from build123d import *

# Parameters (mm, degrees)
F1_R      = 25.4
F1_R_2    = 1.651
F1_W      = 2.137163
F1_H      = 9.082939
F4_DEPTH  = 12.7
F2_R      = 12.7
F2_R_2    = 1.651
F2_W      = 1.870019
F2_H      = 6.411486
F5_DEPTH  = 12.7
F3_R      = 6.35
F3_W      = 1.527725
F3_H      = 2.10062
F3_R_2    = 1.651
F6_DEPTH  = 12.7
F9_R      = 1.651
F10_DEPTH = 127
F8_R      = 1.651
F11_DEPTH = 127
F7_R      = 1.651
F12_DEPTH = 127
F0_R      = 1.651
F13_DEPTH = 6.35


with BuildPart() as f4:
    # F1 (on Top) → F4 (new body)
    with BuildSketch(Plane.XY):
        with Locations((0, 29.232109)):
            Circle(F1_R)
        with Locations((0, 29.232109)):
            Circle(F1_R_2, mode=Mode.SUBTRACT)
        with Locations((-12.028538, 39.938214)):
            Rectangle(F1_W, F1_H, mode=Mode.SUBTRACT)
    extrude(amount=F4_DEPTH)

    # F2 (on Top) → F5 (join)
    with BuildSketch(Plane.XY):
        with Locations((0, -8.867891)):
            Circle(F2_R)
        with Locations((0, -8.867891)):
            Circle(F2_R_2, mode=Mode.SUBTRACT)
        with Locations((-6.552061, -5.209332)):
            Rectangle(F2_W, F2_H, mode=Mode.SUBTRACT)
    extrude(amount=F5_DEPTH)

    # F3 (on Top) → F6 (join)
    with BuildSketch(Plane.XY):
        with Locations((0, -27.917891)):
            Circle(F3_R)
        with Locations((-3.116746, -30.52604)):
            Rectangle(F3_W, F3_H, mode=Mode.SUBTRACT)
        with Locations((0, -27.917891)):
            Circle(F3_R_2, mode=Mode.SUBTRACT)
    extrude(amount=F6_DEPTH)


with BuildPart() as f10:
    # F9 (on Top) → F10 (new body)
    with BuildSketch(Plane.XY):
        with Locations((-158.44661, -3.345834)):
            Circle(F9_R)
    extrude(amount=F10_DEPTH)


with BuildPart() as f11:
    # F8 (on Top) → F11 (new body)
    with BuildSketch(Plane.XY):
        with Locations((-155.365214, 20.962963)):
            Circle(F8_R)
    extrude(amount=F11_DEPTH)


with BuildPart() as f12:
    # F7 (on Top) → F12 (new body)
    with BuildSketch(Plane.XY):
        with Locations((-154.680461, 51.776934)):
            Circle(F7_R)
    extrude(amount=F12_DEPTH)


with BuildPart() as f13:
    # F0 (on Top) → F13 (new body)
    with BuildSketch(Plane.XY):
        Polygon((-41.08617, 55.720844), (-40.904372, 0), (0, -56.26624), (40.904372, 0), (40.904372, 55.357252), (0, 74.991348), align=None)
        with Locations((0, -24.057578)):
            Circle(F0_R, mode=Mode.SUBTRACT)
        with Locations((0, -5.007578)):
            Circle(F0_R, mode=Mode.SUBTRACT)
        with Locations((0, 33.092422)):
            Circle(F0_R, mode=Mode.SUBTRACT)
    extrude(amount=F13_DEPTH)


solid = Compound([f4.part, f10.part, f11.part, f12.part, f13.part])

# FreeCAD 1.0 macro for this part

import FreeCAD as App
import Part
import Sketcher
from FreeCAD import Vector
Q = App.Units.Quantity


def add_polygon(sketch, points):
    """Adds a closed chain of lines whose ends are joined by coincident constraints."""
    first, n = sketch.GeometryCount, len(points)
    for a, b in zip(points, points[1:] + points[:1]):
        sketch.addGeometry(Part.LineSegment(App.Vector(*a, 0), App.Vector(*b, 0)), False)
    for i in range(n):
        sketch.addConstraint(Sketcher.Constraint("Coincident", first + i, 2, first + (i + 1) % n, 1))

doc = App.newDocument("Part")
params = doc.addObject("Spreadsheet::Sheet", "Params")
for row, (alias, value) in enumerate([
    ("sketch1_diameter", "2 in"),
    ("sketch1_diameter2", "0.13 in"),
    ("pad1_length", "0.5 in"),
    ("sketch2_diameter", "1 in"),
    ("sketch2_diameter2", "0.13 in"),
    ("pad2_length", "0.5 in"),
    ("sketch3_diameter", "0.5 in"),
    ("sketch3_diameter2", "0.13 in"),
    ("pad3_length", "0.5 in"),
    ("sketch4_diameter", "0.13 in"),
    ("pad4_length", "5 in"),
    ("sketch5_diameter", "0.13 in"),
    ("pad5_length", "5 in"),
    ("sketch6_diameter", "0.13 in"),
    ("pad6_length", "5 in"),
    ("sketch7_diameter", "0.13 in"),
    ("pad7_length", "0.25 in"),
], start=1):
    params.set(f"A{row}", alias)
    params.set(f"B{row}", "=" + value)
    params.setAlias(f"B{row}", alias)

body = doc.addObject("PartDesign::Body", "Body")
body.AllowCompound = True

# Sketch on XY plane
sketch1 = body.newObject("Sketcher::SketchObject", "Sketch")
sketch1.AttachmentSupport = (doc.getObject("XY_Plane"), [""])
sketch1.MapMode = "FlatFace"
sketch1.addGeometry(Part.Circle(Vector(0, 29.232109, 0), Vector(0, 0, 1), 25.4), False)  # 0
sketch1.addGeometry(Part.Circle(Vector(0, 29.232109, 0), Vector(0, 0, 1), 1.651), False)  # 1
add_polygon(sketch1, [(-10.959957, 35.396744), (-13.097119, 35.396744), (-13.097119, 44.479684), (-10.959957, 44.479684)])  # lines 2-5
sketch1.addConstraint([
    Sketcher.Constraint("Horizontal", 2),
    Sketcher.Constraint("Vertical", 3),
    Sketcher.Constraint("Horizontal", 4),
    Sketcher.Constraint("Vertical", 5),
    Sketcher.Constraint("Coincident", 1, 3, 0, 3),
    Sketcher.Constraint("PointOnObject", 0, 3, -2),
    Sketcher.Constraint("Diameter", 0, Q("2 in")),
    Sketcher.Constraint("Diameter", 1, Q("0.13 in")),
    Sketcher.Constraint("DistanceY", 3, 1, 3, 2, 9.082939),
    Sketcher.Constraint("DistanceX", 2, 2, 2, 1, 2.137163),
    Sketcher.Constraint("DistanceY", -1, 1, 0, 3, 29.232109),
    Sketcher.Constraint("DistanceX", 2, 2, -1, 1, 13.097119),
    Sketcher.Constraint("DistanceY", -1, 1, 2, 2, 35.396744),
])
sketch1.setExpression("Constraints[10]", "Params.sketch1_diameter")
sketch1.setExpression("Constraints[11]", "Params.sketch1_diameter2")
pad1 = body.newObject("PartDesign::Pad", "Pad")
pad1.Profile = sketch1
pad1.setExpression("Length", "Params.pad1_length")

# Sketch on XY plane
sketch2 = body.newObject("Sketcher::SketchObject", "Sketch001")
sketch2.AttachmentSupport = (doc.getObject("XY_Plane"), [""])
sketch2.MapMode = "FlatFace"
sketch2.addGeometry(Part.Circle(Vector(0, -8.867891, 0), Vector(0, 0, 1), 12.7), False)  # 0
sketch2.addGeometry(Part.Circle(Vector(0, -8.867891, 0), Vector(0, 0, 1), 1.651), False)  # 1
add_polygon(sketch2, [(-5.617051, -8.415075), (-7.48707, -8.415075), (-7.48707, -2.003589), (-5.617051, -2.003589)])  # lines 2-5
sketch2.addConstraint([
    Sketcher.Constraint("Horizontal", 2),
    Sketcher.Constraint("Vertical", 3),
    Sketcher.Constraint("Horizontal", 4),
    Sketcher.Constraint("Vertical", 5),
    Sketcher.Constraint("Coincident", 1, 3, 0, 3),
    Sketcher.Constraint("PointOnObject", 0, 3, -2),
    Sketcher.Constraint("Diameter", 0, Q("1 in")),
    Sketcher.Constraint("Diameter", 1, Q("0.13 in")),
    Sketcher.Constraint("DistanceX", 2, 2, 2, 1, 1.870019),
    Sketcher.Constraint("DistanceY", 3, 1, 3, 2, 6.411486),
    Sketcher.Constraint("DistanceY", 0, 3, -1, 1, 8.867891),
    Sketcher.Constraint("DistanceX", 2, 2, -1, 1, 7.48707),
    Sketcher.Constraint("DistanceY", 3, 2, -1, 1, 2.003589),
])
sketch2.setExpression("Constraints[10]", "Params.sketch2_diameter")
sketch2.setExpression("Constraints[11]", "Params.sketch2_diameter2")
pad2 = body.newObject("PartDesign::Pad", "Pad001")
pad2.Profile = sketch2
pad2.setExpression("Length", "Params.pad2_length")

# Sketch on XY plane
sketch3 = body.newObject("Sketcher::SketchObject", "Sketch002")
sketch3.AttachmentSupport = (doc.getObject("XY_Plane"), [""])
sketch3.MapMode = "FlatFace"
sketch3.addGeometry(Part.Circle(Vector(0, -27.917891, 0), Vector(0, 0, 1), 6.35), False)  # 0
add_polygon(sketch3, [(-2.352883, -31.57635), (-3.880609, -31.57635), (-3.880609, -29.47573), (-2.352883, -29.47573)])  # lines 1-4
sketch3.addGeometry(Part.Circle(Vector(0, -27.917891, 0), Vector(0, 0, 1), 1.651), False)  # 5
sketch3.addConstraint([
    Sketcher.Constraint("Horizontal", 1),
    Sketcher.Constraint("Vertical", 2),
    Sketcher.Constraint("Horizontal", 3),
    Sketcher.Constraint("Vertical", 4),
    Sketcher.Constraint("Coincident", 5, 3, 0, 3),
    Sketcher.Constraint("PointOnObject", 0, 3, -2),
    Sketcher.Constraint("Diameter", 0, Q("0.5 in")),
    Sketcher.Constraint("Diameter", 5, Q("0.13 in")),
    Sketcher.Constraint("DistanceY", 2, 1, 2, 2, 2.10062),
    Sketcher.Constraint("DistanceX", 1, 2, 1, 1, 1.527725),
    Sketcher.Constraint("DistanceY", 0, 3, -1, 1, 27.917891),
    Sketcher.Constraint("DistanceX", 1, 2, -1, 1, 3.880609),
    Sketcher.Constraint("DistanceY", 1, 2, -1, 1, 31.57635),
])
sketch3.setExpression("Constraints[10]", "Params.sketch3_diameter")
sketch3.setExpression("Constraints[11]", "Params.sketch3_diameter2")
pad3 = body.newObject("PartDesign::Pad", "Pad002")
pad3.Profile = sketch3
pad3.setExpression("Length", "Params.pad3_length")
body2 = doc.addObject("PartDesign::Body", "Body001")

# Sketch on XY plane
sketch4 = body2.newObject("Sketcher::SketchObject", "Sketch003")
sketch4.AttachmentSupport = (doc.getObject("XY_Plane001"), [""])
sketch4.MapMode = "FlatFace"
sketch4.addGeometry(Part.Circle(Vector(-158.44661, -3.345834, 0), Vector(0, 0, 1), 1.651), False)
sketch4.addConstraint([
    Sketcher.Constraint("Diameter", 0, Q("0.13 in")),
    Sketcher.Constraint("DistanceX", 0, 3, -1, 1, 158.44661),
    Sketcher.Constraint("DistanceY", 0, 3, -1, 1, 3.345834),
])
sketch4.setExpression("Constraints[0]", "Params.sketch4_diameter")
pad4 = body2.newObject("PartDesign::Pad", "Pad003")
pad4.Profile = sketch4
pad4.setExpression("Length", "Params.pad4_length")
body3 = doc.addObject("PartDesign::Body", "Body002")

# Sketch on XY plane
sketch5 = body3.newObject("Sketcher::SketchObject", "Sketch004")
sketch5.AttachmentSupport = (doc.getObject("XY_Plane002"), [""])
sketch5.MapMode = "FlatFace"
sketch5.addGeometry(Part.Circle(Vector(-155.365214, 20.962963, 0), Vector(0, 0, 1), 1.651), False)
sketch5.addConstraint([
    Sketcher.Constraint("Diameter", 0, Q("0.13 in")),
    Sketcher.Constraint("DistanceX", 0, 3, -1, 1, 155.365214),
    Sketcher.Constraint("DistanceY", -1, 1, 0, 3, 20.962963),
])
sketch5.setExpression("Constraints[0]", "Params.sketch5_diameter")
pad5 = body3.newObject("PartDesign::Pad", "Pad004")
pad5.Profile = sketch5
pad5.setExpression("Length", "Params.pad5_length")
body4 = doc.addObject("PartDesign::Body", "Body003")

# Sketch on XY plane
sketch6 = body4.newObject("Sketcher::SketchObject", "Sketch005")
sketch6.AttachmentSupport = (doc.getObject("XY_Plane003"), [""])
sketch6.MapMode = "FlatFace"
sketch6.addGeometry(Part.Circle(Vector(-154.680461, 51.776934, 0), Vector(0, 0, 1), 1.651), False)
sketch6.addConstraint([
    Sketcher.Constraint("Diameter", 0, Q("0.13 in")),
    Sketcher.Constraint("DistanceX", 0, 3, -1, 1, 154.680461),
    Sketcher.Constraint("DistanceY", -1, 1, 0, 3, 51.776934),
])
sketch6.setExpression("Constraints[0]", "Params.sketch6_diameter")
pad6 = body4.newObject("PartDesign::Pad", "Pad005")
pad6.Profile = sketch6
pad6.setExpression("Length", "Params.pad6_length")
body5 = doc.addObject("PartDesign::Body", "Body004")

# Sketch on XY plane
sketch7 = body5.newObject("Sketcher::SketchObject", "Sketch006")
sketch7.AttachmentSupport = (doc.getObject("XY_Plane004"), [""])
sketch7.MapMode = "FlatFace"
add_polygon(sketch7, [(-41.08617, 55.720844), (-40.904372, 0), (0, -56.26624), (40.904372, 0), (40.904372, 55.357252), (0, 74.991348)])  # lines 0-5
sketch7.addGeometry(Part.Circle(Vector(0, -24.057578, 0), Vector(0, 0, 1), 1.651), False)  # 6
sketch7.addGeometry(Part.Circle(Vector(0, -5.007578, 0), Vector(0, 0, 1), 1.651), False)  # 7
sketch7.addGeometry(Part.Circle(Vector(0, 33.092422, 0), Vector(0, 0, 1), 1.651), False)  # 8
sketch7.addConstraint([
    Sketcher.Constraint("Vertical", 3),
    Sketcher.Constraint("Equal", 6, 7),
    Sketcher.Constraint("Equal", 7, 8),
    Sketcher.Constraint("Symmetric", 0, 2, 2, 2, -1, 1),
    Sketcher.Constraint("PointOnObject", 6, 3, -2),
    Sketcher.Constraint("PointOnObject", 7, 3, -2),
    Sketcher.Constraint("PointOnObject", 8, 3, -2),
    Sketcher.Constraint("PointOnObject", 0, 2, -1),
    Sketcher.Constraint("PointOnObject", 1, 2, -2),
    Sketcher.Constraint("PointOnObject", 4, 2, -2),
    Sketcher.Constraint("Diameter", 6, Q("0.13 in")),
    Sketcher.Constraint("DistanceY", 7, 3, 8, 3, Q("1.5 in")),
    Sketcher.Constraint("DistanceY", 6, 3, 7, 3, Q("0.75 in")),
    Sketcher.Constraint("DistanceX", 5, 2, 0, 2, 0.181798),
    Sketcher.Constraint("Distance", 0, 55.721141),
    Sketcher.Constraint("DistanceY", 3, 1, 3, 2, 55.357252),
    Sketcher.Constraint("DistanceY", 1, 2, -1, 1, 56.26624),
    Sketcher.Constraint("DistanceY", -1, 1, 4, 2, 74.991348),
    Sketcher.Constraint("DistanceX", 5, 2, -1, 1, 41.08617),
    Sketcher.Constraint("DistanceY", 8, 3, 3, 2, 22.26483),
])
sketch7.setExpression("Constraints[16]", "Params.sketch7_diameter")
pad7 = body5.newObject("PartDesign::Pad", "Pad006")
pad7.Profile = sketch7
pad7.setExpression("Length", "Params.pad7_length")

doc.recompute()
